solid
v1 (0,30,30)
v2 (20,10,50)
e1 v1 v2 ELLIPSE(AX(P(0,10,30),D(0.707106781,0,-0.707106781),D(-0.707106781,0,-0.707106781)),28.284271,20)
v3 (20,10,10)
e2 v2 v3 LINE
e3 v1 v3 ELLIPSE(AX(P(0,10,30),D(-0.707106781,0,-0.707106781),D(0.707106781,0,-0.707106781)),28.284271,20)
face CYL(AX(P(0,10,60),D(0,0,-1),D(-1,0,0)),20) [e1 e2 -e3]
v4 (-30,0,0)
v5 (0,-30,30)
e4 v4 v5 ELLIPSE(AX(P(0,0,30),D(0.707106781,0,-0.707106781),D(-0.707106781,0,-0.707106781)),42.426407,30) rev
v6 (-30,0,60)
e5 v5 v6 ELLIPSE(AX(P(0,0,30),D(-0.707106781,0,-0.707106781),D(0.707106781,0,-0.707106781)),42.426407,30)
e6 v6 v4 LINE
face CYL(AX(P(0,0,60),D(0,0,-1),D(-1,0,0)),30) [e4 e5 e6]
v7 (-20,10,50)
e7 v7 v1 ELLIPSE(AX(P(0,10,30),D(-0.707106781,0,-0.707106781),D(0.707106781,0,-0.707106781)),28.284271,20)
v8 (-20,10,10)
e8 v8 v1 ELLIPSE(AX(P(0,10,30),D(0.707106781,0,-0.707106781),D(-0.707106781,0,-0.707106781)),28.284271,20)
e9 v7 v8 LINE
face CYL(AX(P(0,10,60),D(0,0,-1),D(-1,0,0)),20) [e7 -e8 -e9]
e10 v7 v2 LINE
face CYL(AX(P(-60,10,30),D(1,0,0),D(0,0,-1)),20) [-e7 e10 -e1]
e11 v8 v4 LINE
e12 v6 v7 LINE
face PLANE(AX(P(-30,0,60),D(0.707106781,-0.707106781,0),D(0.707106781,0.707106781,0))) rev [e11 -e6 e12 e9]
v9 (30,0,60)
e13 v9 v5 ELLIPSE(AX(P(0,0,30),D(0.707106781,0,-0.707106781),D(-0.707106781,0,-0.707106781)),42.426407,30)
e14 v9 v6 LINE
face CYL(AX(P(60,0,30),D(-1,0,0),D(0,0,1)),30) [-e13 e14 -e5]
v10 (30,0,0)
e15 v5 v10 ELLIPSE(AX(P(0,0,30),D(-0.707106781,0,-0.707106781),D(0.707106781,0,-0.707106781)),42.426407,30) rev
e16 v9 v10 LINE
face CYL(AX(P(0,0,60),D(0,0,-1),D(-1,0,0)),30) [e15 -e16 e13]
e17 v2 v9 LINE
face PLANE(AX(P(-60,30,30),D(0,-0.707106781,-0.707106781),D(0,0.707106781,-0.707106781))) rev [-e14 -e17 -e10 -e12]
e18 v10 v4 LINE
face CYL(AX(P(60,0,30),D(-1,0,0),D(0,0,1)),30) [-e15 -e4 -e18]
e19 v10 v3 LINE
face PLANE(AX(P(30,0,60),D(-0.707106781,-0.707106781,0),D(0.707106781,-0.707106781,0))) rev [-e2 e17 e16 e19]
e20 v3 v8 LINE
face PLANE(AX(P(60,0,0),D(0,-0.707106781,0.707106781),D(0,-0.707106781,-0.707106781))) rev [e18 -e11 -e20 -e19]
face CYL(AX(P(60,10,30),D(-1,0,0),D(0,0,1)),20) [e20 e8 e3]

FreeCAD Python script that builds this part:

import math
import FreeCAD as App
import Part
import Sketcher

doc = App.newDocument("Part")
params = doc.addObject("Spreadsheet::Sheet", "Params")
for row, (alias, value) in enumerate([
    ("sketch1_radius", "30 mm"),
    ("sketch1_radius2", "20 mm"),
    ("pad1_length", "60 mm"),
    ("sketch2_radius", "20 mm"),
    ("sketch2_radius2", "30 mm"),
], start=1):
    params.set(f"A{row}", alias)
    params.set(f"B{row}", "=" + value)
    params.setAlias(f"B{row}", alias)

body = doc.addObject("PartDesign::Body", "Body")

# Sketch on XY plane
sketch1 = body.newObject("Sketcher::SketchObject", "Sketch")
sketch1.AttachmentSupport = (doc.getObject("XY_Plane"), [""])
sketch1.MapMode = "FlatFace"
sketch1.addGeometry([
    Part.LineSegment(App.Vector(-20, 10, 0), App.Vector(-30, 0, 0)),
    Part.ArcOfCircle(Part.Circle(App.Vector(0, 0, 0), App.Vector(0, 0, 1), 30), math.radians(180), math.radians(360)),
    Part.LineSegment(App.Vector(30, 0, 0), App.Vector(20, 10, 0)),
    Part.ArcOfCircle(Part.Circle(App.Vector(0, 10, 0), App.Vector(0, 0, 1), 20), math.radians(0), math.radians(180)),
], False)
sketch1.addConstraint([
    Sketcher.Constraint("Coincident", 0, 2, 1, 1),
    Sketcher.Constraint("Coincident", 1, 2, 2, 1),
    Sketcher.Constraint("Coincident", 2, 2, 3, 1),
    Sketcher.Constraint("Coincident", 3, 2, 0, 1),
    Sketcher.Constraint("Coincident", 1, 3, -1, 1),
    Sketcher.Constraint("Symmetric", 2, 2, 3, 2, -2),
    Sketcher.Constraint("PointOnObject", 0, 2, -1),
    Sketcher.Constraint("PointOnObject", 1, 2, -1),
    Sketcher.Constraint("Perpendicular", 0, 2),
    Sketcher.Constraint("Horizontal", 3, 3, 2, 2),
    Sketcher.Constraint("Radius", 1, 30.0),
    Sketcher.Constraint("Radius", 3, 20.0),
])
sketch1.setExpression("Constraints[10]", "Params.sketch1_radius")
sketch1.setExpression("Constraints[11]", "Params.sketch1_radius2")
pad1 = body.newObject("PartDesign::Pad", "Pad")
pad1.Profile = sketch1
pad1.setExpression("Length", "Params.pad1_length")

# Sketch on YZ plane
sketch2 = body.newObject("Sketcher::SketchObject", "Sketch001")
sketch2.AttachmentSupport = (doc.getObject("YZ_Plane"), [""])
sketch2.MapMode = "FlatFace"
sketch2.addGeometry([
    Part.LineSegment(App.Vector(10, 10, 0), App.Vector(0, 0, 0)),  # 0
    Part.LineSegment(App.Vector(0, 0, 0), App.Vector(30, 0, 0)),  # 1
    Part.LineSegment(App.Vector(30, 0, 0), App.Vector(30, 30, 0)),  # 2
    Part.ArcOfCircle(Part.Circle(App.Vector(10, 30, 0), App.Vector(0, 0, 1), 20), math.radians(-90), math.radians(0)),  # 3
    Part.ArcOfCircle(Part.Circle(App.Vector(10, 30, 0), App.Vector(0, 0, 1), 20), math.radians(0), math.radians(90)),  # 4
    Part.LineSegment(App.Vector(30, 30, 0), App.Vector(30, 60, 0)),  # 5
    Part.LineSegment(App.Vector(30, 60, 0), App.Vector(0, 60, 0)),  # 6
    Part.LineSegment(App.Vector(0, 60, 0), App.Vector(10, 50, 0)),  # 7
    Part.LineSegment(App.Vector(-30, 60, 0), App.Vector(-30, 30, 0)),  # 8
    Part.ArcOfCircle(Part.Circle(App.Vector(0, 30, 0), App.Vector(0, 0, 1), 30), math.radians(90), math.radians(180)),  # 9
    Part.LineSegment(App.Vector(0, 60, 0), App.Vector(-30, 60, 0)),  # 10
    Part.LineSegment(App.Vector(-30, 0, 0), App.Vector(0, 0, 0)),  # 11
    Part.ArcOfCircle(Part.Circle(App.Vector(0, 30, 0), App.Vector(0, 0, 1), 30), math.radians(180), math.radians(270)),  # 12
    Part.LineSegment(App.Vector(-30, 30, 0), App.Vector(-30, 0, 0)),  # 13
], False)
sketch2.addConstraint([
    Sketcher.Constraint("Coincident", 0, 2, 1, 1),
    Sketcher.Constraint("Coincident", 1, 2, 2, 1),
    Sketcher.Constraint("Tangent", 2, 2, 3, 2),
    Sketcher.Constraint("Coincident", 3, 1, 0, 1),
    Sketcher.Constraint("Tangent", 4, 1, 5, 1),
    Sketcher.Constraint("Coincident", 5, 2, 6, 1),
    Sketcher.Constraint("Coincident", 6, 2, 7, 1),
    Sketcher.Constraint("Coincident", 7, 2, 4, 2),
    Sketcher.Constraint("Tangent", 8, 2, 9, 2),
    Sketcher.Constraint("Tangent", 9, 1, 10, 1),
    Sketcher.Constraint("Coincident", 10, 2, 8, 1),
    Sketcher.Constraint("Tangent", 11, 2, 12, 2),
    Sketcher.Constraint("Tangent", 12, 1, 13, 1),
    Sketcher.Constraint("Coincident", 13, 2, 11, 1),
    Sketcher.Constraint("Horizontal", 1),
    Sketcher.Constraint("Vertical", 2),
    Sketcher.Constraint("Vertical", 5),
    Sketcher.Constraint("Horizontal", 6),
    Sketcher.Constraint("Vertical", 8),
    Sketcher.Constraint("Horizontal", 10),
    Sketcher.Constraint("Horizontal", 11),
    Sketcher.Constraint("Vertical", 13),
    Sketcher.Constraint("Coincident", 0, 2, -1, 1),
    Sketcher.Constraint("Coincident", 11, 2, -1, 1),
    Sketcher.Constraint("Coincident", 4, 3, 3, 3),
    Sketcher.Constraint("Coincident", 12, 3, 9, 3),
    Sketcher.Constraint("Coincident", 9, 1, 6, 2),
    Sketcher.Constraint("Equal", 3, 4),
    Sketcher.Constraint("Equal", 9, 12),
    Sketcher.Constraint("Symmetric", 2, 2, 8, 2, -2),
    Sketcher.Constraint("Perpendicular", 0, 7),
    Sketcher.Constraint("Vertical", 4, 3, 3, 1),
    Sketcher.Constraint("Radius", 3, 20.0),
    Sketcher.Constraint("Radius", 9, 30.0),
])
sketch2.setExpression("Constraints[32]", "Params.sketch2_radius")
sketch2.setExpression("Constraints[33]", "Params.sketch2_radius2")
pocket1 = body.newObject("PartDesign::Pocket", "Pocket")
pocket1.Profile = sketch2
pocket1.Type = "ThroughAll"
pocket1.Midplane = True

doc.recompute()
